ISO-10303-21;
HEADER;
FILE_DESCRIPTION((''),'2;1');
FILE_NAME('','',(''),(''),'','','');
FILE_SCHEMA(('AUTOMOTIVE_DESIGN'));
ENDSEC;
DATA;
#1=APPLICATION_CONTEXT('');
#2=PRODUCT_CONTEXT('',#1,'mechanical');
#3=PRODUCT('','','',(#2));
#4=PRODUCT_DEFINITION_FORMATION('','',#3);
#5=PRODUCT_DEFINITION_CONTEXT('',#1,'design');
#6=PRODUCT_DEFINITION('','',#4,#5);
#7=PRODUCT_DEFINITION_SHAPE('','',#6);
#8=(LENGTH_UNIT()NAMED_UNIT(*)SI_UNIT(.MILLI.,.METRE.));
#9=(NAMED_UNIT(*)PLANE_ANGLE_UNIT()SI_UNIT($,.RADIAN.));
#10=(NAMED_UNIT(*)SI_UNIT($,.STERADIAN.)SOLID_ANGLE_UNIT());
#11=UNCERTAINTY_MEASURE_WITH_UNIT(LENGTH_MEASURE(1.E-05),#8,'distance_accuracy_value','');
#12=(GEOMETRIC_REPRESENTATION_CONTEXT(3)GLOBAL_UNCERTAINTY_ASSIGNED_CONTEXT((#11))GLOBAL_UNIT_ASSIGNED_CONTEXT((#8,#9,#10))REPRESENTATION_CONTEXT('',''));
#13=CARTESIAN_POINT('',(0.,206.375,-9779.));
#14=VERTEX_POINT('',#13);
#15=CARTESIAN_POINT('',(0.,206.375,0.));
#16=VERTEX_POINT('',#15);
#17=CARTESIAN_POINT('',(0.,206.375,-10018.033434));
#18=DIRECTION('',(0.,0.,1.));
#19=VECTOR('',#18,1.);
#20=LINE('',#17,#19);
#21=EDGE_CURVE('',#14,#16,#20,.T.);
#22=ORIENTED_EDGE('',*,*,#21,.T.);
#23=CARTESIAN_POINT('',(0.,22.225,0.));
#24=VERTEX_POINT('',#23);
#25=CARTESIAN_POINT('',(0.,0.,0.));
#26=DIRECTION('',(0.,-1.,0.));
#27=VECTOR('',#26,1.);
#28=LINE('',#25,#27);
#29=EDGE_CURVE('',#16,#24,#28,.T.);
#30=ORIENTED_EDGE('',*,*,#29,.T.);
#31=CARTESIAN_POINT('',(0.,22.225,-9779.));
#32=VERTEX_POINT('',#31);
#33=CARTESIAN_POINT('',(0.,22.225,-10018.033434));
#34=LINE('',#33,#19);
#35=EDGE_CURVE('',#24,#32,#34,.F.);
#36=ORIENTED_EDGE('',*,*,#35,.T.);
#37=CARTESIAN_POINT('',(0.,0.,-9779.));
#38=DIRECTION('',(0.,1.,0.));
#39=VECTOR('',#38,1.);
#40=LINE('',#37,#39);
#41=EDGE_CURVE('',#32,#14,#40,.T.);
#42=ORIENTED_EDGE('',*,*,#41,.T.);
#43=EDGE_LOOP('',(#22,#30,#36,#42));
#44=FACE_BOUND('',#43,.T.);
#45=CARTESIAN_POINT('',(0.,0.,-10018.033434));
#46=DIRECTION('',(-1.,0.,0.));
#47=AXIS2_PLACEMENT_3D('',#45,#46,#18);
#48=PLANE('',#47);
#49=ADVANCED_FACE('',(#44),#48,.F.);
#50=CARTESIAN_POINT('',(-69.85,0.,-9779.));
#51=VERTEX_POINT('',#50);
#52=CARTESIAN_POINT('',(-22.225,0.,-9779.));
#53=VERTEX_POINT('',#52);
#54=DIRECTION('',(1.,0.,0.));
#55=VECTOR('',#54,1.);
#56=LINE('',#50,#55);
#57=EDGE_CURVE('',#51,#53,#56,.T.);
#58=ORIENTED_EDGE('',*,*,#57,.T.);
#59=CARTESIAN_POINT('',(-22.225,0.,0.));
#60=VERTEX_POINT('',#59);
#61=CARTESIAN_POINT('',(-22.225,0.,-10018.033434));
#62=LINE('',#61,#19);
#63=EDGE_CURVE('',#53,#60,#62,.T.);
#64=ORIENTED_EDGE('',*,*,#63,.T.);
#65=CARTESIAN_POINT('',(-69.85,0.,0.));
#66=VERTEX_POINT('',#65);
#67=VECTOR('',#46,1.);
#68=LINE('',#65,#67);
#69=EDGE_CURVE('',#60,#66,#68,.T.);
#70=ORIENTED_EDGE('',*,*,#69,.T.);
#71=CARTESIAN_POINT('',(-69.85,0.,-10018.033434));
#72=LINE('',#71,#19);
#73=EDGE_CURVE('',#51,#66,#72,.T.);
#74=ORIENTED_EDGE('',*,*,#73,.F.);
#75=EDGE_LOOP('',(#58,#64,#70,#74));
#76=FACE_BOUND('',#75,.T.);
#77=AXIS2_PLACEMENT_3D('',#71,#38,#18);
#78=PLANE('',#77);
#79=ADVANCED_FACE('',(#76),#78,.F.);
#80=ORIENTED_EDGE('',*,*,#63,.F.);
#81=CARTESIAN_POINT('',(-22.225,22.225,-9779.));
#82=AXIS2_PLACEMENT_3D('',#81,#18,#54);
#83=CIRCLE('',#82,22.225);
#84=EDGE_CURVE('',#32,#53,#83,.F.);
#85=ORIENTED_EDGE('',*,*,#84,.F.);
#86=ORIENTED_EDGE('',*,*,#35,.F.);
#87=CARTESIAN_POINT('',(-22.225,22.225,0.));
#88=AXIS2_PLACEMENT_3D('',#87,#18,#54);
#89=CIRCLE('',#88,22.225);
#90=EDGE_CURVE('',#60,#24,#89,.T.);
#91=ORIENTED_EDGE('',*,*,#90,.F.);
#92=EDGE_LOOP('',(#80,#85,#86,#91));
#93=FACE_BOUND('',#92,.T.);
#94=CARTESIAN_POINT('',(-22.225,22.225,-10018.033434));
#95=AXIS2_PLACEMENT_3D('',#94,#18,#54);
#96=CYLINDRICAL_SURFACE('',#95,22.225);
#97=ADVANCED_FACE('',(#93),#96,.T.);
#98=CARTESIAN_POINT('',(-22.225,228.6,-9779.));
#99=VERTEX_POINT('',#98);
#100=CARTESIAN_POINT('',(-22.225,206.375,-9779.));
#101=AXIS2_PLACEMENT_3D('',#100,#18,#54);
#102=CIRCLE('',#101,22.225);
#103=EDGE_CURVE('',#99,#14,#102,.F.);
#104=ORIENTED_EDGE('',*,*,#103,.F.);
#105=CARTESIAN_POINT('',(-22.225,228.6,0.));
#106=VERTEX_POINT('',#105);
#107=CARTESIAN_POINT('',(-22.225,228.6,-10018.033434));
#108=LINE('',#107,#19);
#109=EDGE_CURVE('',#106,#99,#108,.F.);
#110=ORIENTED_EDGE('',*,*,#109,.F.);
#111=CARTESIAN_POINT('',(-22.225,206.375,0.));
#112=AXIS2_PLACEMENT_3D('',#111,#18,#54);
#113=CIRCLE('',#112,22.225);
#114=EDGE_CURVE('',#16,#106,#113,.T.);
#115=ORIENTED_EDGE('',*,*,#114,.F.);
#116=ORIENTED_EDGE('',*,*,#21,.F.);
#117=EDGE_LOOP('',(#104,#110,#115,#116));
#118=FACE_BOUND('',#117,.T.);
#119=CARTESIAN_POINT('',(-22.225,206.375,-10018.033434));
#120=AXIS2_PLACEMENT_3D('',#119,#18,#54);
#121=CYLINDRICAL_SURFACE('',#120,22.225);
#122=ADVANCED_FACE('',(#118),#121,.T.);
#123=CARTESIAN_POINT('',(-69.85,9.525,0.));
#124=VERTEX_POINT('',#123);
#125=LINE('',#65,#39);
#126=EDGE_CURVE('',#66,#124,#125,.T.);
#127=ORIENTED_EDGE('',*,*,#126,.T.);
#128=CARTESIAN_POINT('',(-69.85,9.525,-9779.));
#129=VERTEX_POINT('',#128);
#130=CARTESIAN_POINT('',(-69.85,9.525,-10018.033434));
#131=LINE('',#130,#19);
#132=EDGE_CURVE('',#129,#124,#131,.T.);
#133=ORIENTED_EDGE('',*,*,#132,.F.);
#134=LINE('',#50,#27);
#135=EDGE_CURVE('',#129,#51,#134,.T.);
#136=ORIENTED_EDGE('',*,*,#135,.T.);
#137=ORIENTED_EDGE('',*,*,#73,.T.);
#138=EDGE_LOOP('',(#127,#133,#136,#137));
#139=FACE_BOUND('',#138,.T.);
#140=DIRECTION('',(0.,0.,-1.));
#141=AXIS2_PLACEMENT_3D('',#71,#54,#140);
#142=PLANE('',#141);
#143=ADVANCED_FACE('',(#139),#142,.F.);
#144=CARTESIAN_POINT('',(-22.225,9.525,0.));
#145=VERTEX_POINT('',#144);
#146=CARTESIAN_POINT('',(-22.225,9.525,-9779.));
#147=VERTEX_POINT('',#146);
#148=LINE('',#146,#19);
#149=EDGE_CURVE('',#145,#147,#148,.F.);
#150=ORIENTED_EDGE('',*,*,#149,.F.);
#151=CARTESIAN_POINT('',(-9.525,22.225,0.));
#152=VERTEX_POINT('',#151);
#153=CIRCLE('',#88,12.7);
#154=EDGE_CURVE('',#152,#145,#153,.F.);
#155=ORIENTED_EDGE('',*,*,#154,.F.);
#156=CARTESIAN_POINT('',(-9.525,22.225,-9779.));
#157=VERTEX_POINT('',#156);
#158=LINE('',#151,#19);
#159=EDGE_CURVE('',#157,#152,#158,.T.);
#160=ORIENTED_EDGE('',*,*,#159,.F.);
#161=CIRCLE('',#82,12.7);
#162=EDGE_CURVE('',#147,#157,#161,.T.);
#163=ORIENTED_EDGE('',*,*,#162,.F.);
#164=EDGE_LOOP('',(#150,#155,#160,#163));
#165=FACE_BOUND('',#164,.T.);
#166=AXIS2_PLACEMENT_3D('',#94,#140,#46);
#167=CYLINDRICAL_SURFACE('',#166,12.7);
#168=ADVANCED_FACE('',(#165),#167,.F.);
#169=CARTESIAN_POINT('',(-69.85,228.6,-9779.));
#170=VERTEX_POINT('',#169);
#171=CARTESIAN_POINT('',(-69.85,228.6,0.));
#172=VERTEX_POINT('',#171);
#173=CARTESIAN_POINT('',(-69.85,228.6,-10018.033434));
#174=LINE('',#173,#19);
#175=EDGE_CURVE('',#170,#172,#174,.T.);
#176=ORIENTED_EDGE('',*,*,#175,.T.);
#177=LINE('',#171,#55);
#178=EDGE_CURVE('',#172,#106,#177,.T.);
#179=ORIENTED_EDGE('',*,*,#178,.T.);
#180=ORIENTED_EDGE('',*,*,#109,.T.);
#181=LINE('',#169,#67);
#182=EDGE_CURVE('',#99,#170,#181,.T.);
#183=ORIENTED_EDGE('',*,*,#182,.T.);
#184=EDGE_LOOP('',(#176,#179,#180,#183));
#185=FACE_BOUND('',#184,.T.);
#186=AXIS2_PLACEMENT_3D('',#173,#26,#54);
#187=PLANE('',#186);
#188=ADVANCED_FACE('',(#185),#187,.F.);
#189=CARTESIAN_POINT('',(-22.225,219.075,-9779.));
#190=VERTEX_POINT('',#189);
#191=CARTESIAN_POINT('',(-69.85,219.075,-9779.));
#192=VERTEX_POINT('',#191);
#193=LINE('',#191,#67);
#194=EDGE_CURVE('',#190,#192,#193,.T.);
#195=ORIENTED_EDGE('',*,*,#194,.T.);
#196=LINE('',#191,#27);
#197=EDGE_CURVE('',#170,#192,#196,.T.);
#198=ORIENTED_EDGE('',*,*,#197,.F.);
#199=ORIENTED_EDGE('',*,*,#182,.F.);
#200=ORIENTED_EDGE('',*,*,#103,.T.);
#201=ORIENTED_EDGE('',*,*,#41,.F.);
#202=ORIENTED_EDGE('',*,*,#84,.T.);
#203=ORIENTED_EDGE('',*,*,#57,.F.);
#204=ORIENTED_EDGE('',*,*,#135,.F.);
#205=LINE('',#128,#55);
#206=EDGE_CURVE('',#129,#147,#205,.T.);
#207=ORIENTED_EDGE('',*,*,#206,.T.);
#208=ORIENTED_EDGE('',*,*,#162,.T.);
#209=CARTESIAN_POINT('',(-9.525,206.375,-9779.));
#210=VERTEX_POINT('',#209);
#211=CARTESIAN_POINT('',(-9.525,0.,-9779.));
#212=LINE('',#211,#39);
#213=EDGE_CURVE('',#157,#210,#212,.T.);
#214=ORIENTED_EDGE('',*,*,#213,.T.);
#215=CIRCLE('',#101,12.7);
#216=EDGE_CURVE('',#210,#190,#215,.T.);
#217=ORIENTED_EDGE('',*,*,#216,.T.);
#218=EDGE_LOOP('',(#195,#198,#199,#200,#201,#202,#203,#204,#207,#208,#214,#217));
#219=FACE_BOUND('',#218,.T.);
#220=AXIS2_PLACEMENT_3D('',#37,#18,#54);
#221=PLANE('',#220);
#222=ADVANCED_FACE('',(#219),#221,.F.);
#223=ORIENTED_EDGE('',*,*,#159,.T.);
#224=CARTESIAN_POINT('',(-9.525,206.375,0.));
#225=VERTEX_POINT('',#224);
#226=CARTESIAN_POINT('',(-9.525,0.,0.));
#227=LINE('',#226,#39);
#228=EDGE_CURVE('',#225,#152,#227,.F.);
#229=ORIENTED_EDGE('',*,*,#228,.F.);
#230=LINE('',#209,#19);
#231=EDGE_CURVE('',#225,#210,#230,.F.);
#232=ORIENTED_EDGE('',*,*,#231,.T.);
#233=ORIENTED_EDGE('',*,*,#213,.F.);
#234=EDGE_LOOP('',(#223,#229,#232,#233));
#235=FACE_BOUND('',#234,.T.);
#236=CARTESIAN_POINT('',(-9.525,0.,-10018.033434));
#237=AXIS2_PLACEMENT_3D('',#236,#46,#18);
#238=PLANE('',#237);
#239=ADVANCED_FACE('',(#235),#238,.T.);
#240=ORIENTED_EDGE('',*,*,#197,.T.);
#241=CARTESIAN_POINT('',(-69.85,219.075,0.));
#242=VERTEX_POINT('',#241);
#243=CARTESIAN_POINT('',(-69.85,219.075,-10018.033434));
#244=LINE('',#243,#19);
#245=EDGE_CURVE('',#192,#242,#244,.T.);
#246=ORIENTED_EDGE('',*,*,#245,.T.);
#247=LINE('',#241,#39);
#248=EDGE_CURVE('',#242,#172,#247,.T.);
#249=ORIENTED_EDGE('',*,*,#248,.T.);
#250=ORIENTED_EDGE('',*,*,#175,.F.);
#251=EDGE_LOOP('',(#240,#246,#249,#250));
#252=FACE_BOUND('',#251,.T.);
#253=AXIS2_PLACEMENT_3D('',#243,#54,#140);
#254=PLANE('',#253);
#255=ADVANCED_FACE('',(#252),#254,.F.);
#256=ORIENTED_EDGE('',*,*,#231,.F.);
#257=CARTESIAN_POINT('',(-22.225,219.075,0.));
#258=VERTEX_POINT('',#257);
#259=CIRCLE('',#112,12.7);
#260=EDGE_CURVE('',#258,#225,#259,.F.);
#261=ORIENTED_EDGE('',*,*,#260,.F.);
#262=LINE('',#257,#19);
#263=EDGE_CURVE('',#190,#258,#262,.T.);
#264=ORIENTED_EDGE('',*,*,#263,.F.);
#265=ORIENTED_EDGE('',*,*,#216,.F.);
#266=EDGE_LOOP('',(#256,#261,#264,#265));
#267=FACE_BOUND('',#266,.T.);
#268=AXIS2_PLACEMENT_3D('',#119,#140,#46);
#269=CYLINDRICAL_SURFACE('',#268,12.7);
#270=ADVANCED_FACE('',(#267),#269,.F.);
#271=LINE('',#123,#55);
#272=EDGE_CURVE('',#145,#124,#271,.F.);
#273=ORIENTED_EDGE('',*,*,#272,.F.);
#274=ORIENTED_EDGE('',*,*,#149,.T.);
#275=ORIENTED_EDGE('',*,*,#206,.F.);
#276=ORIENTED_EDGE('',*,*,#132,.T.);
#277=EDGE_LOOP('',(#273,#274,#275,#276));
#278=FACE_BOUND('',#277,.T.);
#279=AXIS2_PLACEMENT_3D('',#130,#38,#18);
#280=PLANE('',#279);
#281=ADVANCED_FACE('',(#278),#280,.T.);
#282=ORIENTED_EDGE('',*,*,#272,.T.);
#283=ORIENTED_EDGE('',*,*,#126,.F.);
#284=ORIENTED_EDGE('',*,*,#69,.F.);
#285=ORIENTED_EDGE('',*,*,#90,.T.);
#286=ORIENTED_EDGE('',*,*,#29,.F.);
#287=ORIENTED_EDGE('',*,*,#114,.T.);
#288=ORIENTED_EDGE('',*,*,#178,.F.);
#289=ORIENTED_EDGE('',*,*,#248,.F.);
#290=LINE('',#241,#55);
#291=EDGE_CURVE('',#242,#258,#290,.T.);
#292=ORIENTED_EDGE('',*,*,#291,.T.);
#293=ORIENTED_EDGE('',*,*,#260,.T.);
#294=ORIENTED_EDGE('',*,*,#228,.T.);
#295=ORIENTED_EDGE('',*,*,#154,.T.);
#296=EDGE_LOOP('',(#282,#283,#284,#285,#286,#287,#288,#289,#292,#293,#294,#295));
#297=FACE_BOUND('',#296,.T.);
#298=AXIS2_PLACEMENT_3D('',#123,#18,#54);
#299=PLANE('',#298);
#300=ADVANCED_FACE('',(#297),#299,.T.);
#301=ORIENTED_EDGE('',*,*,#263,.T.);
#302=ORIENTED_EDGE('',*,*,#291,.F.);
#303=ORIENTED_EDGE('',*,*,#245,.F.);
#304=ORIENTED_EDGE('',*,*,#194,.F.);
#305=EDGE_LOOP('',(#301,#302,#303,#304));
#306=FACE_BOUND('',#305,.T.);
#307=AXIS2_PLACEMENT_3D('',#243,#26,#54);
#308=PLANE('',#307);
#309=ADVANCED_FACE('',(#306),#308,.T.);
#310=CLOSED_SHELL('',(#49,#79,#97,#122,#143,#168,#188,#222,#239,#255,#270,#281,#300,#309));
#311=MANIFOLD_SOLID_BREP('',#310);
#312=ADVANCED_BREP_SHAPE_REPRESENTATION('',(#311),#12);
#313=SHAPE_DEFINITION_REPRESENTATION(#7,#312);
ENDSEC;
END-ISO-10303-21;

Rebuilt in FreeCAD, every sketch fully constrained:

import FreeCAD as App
import Part
import Sketcher
Q = App.Units.Quantity


def edges_at(feature, points):
    """Names of the edges that pass closest to the given points."""
    edges = feature.Shape.Edges
    near = lambda p: min(range(len(edges)), key=lambda i: edges[i].distToShape(Part.Vertex(*p))[0])
    return sorted({f"Edge{near(p) + 1}" for p in points})

doc = App.newDocument("Part")
body = doc.addObject("PartDesign::Body", "Body")

sketch1 = body.newObject("Sketcher::SketchObject", "Sketch")
sketch1.AttachmentSupport = (doc.getObject("XY_Plane"), [""])
sketch1.MapMode = "FlatFace"
sketch1.addGeometry([
    Part.LineSegment(App.Vector(-70, 0, 0), App.Vector(0, 0, 0)),
    Part.LineSegment(App.Vector(0, 0, 0), App.Vector(0, 229, 0)),
    Part.LineSegment(App.Vector(0, 229, 0), App.Vector(-70, 229, 0)),
    Part.LineSegment(App.Vector(-70, 229, 0), App.Vector(-70, 219, 0)),
    Part.LineSegment(App.Vector(-70, 219, 0), App.Vector(-10, 219, 0)),
    Part.LineSegment(App.Vector(-10, 219, 0), App.Vector(-10, 10, 0)),
    Part.LineSegment(App.Vector(-10, 10, 0), App.Vector(-70, 10, 0)),
    Part.LineSegment(App.Vector(-70, 10, 0), App.Vector(-70, 0, 0)),
], False)
sketch1.addConstraint([
    Sketcher.Constraint("Coincident", 0, 2, 1, 1),
    Sketcher.Constraint("Coincident", 1, 2, 2, 1),
    Sketcher.Constraint("Coincident", 2, 2, 3, 1),
    Sketcher.Constraint("Coincident", 3, 2, 4, 1),
    Sketcher.Constraint("Coincident", 4, 2, 5, 1),
    Sketcher.Constraint("Coincident", 5, 2, 6, 1),
    Sketcher.Constraint("Coincident", 6, 2, 7, 1),
    Sketcher.Constraint("Coincident", 7, 2, 0, 1),
    Sketcher.Constraint("Horizontal", 0),
    Sketcher.Constraint("Vertical", 1),
    Sketcher.Constraint("Horizontal", 2),
    Sketcher.Constraint("Vertical", 3),
    Sketcher.Constraint("Horizontal", 4),
    Sketcher.Constraint("Vertical", 5),
    Sketcher.Constraint("Horizontal", 6),
    Sketcher.Constraint("Vertical", 7),
    Sketcher.Constraint("Coincident", 0, 2, -1, 1),
    Sketcher.Constraint("Vertical", 3, 2, 6, 2),
    Sketcher.Constraint("Equal", 3, 7),
    Sketcher.Constraint("DistanceY", 1, 1, 1, 2, Q("9 in")),
    Sketcher.Constraint("DistanceX", 0, 1, 0, 2, Q("2.75 in")),
    Sketcher.Constraint("DistanceY", 5, 2, 5, 1, Q("8.25 in")),
    Sketcher.Constraint("DistanceX", 4, 1, 4, 2, Q("2.375 in")),
])
pad1 = body.newObject("PartDesign::Pad", "Pad")
pad1.Profile = sketch1
pad1.Length = Q("385 in")
pad1.Reversed = True
doc.recompute()

fillet = body.newObject("PartDesign::Fillet", "Fillet")
fillet.Base = (pad1, edges_at(pad1, [(-9.525, 219.075, -4889.5), (-9.525, 9.525, -4889.5)]))
fillet.Radius = Q("0.5 in")
doc.recompute()

fillet2 = body.newObject("PartDesign::Fillet", "Fillet001")
fillet2.Base = (fillet, edges_at(fillet, [(0, 0, -4889.5), (0, 228.6, -4889.5)]))
fillet2.Radius = Q("0.875 in")

doc.recompute()
